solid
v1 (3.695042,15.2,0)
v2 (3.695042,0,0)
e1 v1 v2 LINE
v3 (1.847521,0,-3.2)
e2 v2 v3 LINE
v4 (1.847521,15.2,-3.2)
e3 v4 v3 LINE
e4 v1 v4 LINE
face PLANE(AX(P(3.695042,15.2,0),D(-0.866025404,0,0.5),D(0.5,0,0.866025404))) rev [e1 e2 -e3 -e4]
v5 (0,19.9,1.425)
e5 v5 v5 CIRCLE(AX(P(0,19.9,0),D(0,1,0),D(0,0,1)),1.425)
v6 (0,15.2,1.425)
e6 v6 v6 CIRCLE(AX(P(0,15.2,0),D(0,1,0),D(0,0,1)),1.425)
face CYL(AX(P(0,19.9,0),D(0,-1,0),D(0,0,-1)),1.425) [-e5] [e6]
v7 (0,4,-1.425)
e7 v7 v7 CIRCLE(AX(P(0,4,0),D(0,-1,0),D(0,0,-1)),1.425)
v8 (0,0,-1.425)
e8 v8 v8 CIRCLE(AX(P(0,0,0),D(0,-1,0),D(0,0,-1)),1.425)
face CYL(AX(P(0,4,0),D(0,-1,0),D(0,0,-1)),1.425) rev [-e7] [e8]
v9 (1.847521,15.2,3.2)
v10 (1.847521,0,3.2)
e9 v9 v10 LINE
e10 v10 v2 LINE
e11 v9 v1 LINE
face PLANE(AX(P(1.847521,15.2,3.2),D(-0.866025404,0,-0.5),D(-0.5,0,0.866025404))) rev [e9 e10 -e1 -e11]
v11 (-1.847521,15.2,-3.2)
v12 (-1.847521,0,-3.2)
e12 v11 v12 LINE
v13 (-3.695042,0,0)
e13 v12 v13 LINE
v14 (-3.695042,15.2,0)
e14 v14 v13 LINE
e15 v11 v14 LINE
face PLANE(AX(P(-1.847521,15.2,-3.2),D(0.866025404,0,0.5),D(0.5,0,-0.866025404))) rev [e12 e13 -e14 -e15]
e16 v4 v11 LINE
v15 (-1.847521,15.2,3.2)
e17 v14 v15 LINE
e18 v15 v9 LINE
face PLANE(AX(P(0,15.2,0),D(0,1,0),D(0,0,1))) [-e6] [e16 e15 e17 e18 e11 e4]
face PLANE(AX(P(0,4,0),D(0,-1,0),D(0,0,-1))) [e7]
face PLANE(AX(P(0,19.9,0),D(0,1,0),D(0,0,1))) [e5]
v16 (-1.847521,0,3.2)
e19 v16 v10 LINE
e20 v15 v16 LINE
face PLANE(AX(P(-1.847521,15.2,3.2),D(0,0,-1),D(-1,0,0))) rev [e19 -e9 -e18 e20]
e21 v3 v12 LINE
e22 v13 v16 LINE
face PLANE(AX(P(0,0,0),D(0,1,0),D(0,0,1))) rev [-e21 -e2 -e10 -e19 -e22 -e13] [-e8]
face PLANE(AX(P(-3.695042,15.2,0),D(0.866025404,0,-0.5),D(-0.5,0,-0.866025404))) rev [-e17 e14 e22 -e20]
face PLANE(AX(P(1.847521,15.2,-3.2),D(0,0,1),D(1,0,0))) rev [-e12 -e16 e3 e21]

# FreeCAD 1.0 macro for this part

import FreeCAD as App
import Part
import Sketcher
Q = App.Units.Quantity


def add_polygon(sketch, points):
    """Adds a closed chain of lines whose ends are joined by coincident constraints."""
    first, n = sketch.GeometryCount, len(points)
    for a, b in zip(points, points[1:] + points[:1]):
        sketch.addGeometry(Part.LineSegment(App.Vector(*a, 0), App.Vector(*b, 0)), False)
    for i in range(n):
        sketch.addConstraint(Sketcher.Constraint("Coincident", first + i, 2, first + (i + 1) % n, 1))

doc = App.newDocument("Part")
body = doc.addObject("PartDesign::Body", "Body")

sketch1 = body.newObject("Sketcher::SketchObject", "Sketch")
sketch1.AttachmentSupport = (doc.getObject("XZ_Plane"), [""])
sketch1.MapMode = "FlatFace"
add_polygon(sketch1, [(1.8, -3.2), (-1.8, -3.2), (-3.7, 0), (-1.8, 3.2), (1.8, 3.2), (3.7, 0)])
sketch1.addConstraint(Sketcher.Constraint("Horizontal", 0))
sketch1.addConstraint(Sketcher.Constraint("Horizontal", 3))
sketch1.addConstraint(Sketcher.Constraint("Symmetric", 0, 2, 3, 2, -1, 1))
sketch1.addConstraint(Sketcher.Constraint("Symmetric", 1, 2, 4, 2, -1, 1))
sketch1.addConstraint(Sketcher.Constraint("PointOnObject", 1, 2, -1))
sketch1.addConstraint(Sketcher.Constraint("Parallel", 2, 5))
sketch1.addConstraint(Sketcher.Constraint("Vertical", 0, 2, 2, 2))
sketch1.addConstraint(Sketcher.Constraint("Angle", 1, Q("120 deg")))
sketch1.addConstraint(Sketcher.Constraint("DistanceY", 0, 2, -1, 1, 3.2))
sketch1.addConstraint(Sketcher.Constraint("DistanceX", 0, 2, 0, 1, 3.695042))
pad1 = body.newObject("PartDesign::Pad", "Pad")
pad1.Profile = sketch1
pad1.Length = 15.2
pad1.Reversed = True

sketch2 = body.newObject("Sketcher::SketchObject", "Sketch001")
sketch2.AttachmentSupport = (doc.getObject("XZ_Plane"), [""])
sketch2.MapMode = "FlatFace"
sketch2.AttachmentOffset = App.Placement(App.Vector(0, 0, -15.2), App.Rotation())
sketch2.addGeometry(Part.Circle(App.Vector(0, 0, 0), App.Vector(0, 0, 1), 1.4), False)
sketch2.addConstraint(Sketcher.Constraint("Coincident", 0, 3, -1, 1))
sketch2.addConstraint(Sketcher.Constraint("Diameter", 0, 2.85))
pad2 = body.newObject("PartDesign::Pad", "Pad001")
pad2.Profile = sketch2
pad2.Length = 4.7
pad2.Reversed = True

sketch3 = body.newObject("Sketcher::SketchObject", "Sketch002")
sketch3.AttachmentSupport = (doc.getObject("XZ_Plane"), [""])
sketch3.MapMode = "FlatFace"
sketch3.addGeometry(Part.Circle(App.Vector(0, 0, 0), App.Vector(0, 0, 1), 1.4), False)
sketch3.addConstraint(Sketcher.Constraint("Coincident", 0, 3, -1, 1))
sketch3.addConstraint(Sketcher.Constraint("Diameter", 0, 2.85))
pocket1 = body.newObject("PartDesign::Pocket", "Pocket")
pocket1.Profile = sketch3
pocket1.Length = 4

doc.recompute()
